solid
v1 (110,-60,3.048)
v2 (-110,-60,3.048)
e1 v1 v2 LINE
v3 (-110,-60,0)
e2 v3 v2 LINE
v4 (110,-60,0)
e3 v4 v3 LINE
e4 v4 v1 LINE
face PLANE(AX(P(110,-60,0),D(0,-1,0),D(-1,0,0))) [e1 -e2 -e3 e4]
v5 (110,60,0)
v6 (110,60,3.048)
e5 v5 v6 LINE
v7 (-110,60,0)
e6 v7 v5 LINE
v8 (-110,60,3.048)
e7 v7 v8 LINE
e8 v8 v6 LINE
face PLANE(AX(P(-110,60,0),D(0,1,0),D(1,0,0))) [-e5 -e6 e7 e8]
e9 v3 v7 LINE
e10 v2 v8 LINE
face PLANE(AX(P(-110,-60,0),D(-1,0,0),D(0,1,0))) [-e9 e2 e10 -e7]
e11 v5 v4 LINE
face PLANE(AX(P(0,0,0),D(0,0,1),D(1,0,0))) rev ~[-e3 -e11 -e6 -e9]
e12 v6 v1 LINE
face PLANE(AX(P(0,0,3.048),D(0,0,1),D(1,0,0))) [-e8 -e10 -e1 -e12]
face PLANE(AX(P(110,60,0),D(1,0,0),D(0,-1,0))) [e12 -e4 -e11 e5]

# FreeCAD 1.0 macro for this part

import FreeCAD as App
import Part
import Sketcher
from FreeCAD import Vector

doc = App.newDocument("Part")
body = doc.addObject("PartDesign::Body", "Body")

# Sketch on XY plane
sketch1 = doc.addObject("Sketcher::SketchObject", "Sketch")
body.addObject(sketch1)
sketch1.AttachmentSupport = (doc.XY_Plane, [""])
sketch1.MapMode = "FlatFace"
sketch1.addGeometry(Part.LineSegment(Vector(110, 60, 0), Vector(-110, 60, 0)), False)
sketch1.addGeometry(Part.LineSegment(Vector(-110, 60, 0), Vector(-110, -60, 0)), False)
sketch1.addGeometry(Part.LineSegment(Vector(-110, -60, 0), Vector(110, -60, 0)), False)
sketch1.addGeometry(Part.LineSegment(Vector(110, -60, 0), Vector(110, 60, 0)), False)
sketch1.addConstraint(Sketcher.Constraint("Coincident", 0, 2, 1, 1))
sketch1.addConstraint(Sketcher.Constraint("Coincident", 1, 2, 2, 1))
sketch1.addConstraint(Sketcher.Constraint("Coincident", 2, 2, 3, 1))
sketch1.addConstraint(Sketcher.Constraint("Coincident", 3, 2, 0, 1))
sketch1.addConstraint(Sketcher.Constraint("Horizontal", 0))
sketch1.addConstraint(Sketcher.Constraint("Vertical", 1))
sketch1.addConstraint(Sketcher.Constraint("Horizontal", 2))
sketch1.addConstraint(Sketcher.Constraint("Vertical", 3))
sketch1.addConstraint(Sketcher.Constraint("Symmetric", 0, 2, 2, 2, -1, 1))
sketch1.addConstraint(Sketcher.Constraint("DistanceX", 0, 2, 0, 1, 220.0))
sketch1.addConstraint(Sketcher.Constraint("DistanceY", 1, 2, 1, 1, 120.0))
pad1 = doc.addObject("PartDesign::Pad", "Pad")
body.addObject(pad1)
pad1.Profile = sketch1
pad1.Length = 3.048

doc.recompute()
